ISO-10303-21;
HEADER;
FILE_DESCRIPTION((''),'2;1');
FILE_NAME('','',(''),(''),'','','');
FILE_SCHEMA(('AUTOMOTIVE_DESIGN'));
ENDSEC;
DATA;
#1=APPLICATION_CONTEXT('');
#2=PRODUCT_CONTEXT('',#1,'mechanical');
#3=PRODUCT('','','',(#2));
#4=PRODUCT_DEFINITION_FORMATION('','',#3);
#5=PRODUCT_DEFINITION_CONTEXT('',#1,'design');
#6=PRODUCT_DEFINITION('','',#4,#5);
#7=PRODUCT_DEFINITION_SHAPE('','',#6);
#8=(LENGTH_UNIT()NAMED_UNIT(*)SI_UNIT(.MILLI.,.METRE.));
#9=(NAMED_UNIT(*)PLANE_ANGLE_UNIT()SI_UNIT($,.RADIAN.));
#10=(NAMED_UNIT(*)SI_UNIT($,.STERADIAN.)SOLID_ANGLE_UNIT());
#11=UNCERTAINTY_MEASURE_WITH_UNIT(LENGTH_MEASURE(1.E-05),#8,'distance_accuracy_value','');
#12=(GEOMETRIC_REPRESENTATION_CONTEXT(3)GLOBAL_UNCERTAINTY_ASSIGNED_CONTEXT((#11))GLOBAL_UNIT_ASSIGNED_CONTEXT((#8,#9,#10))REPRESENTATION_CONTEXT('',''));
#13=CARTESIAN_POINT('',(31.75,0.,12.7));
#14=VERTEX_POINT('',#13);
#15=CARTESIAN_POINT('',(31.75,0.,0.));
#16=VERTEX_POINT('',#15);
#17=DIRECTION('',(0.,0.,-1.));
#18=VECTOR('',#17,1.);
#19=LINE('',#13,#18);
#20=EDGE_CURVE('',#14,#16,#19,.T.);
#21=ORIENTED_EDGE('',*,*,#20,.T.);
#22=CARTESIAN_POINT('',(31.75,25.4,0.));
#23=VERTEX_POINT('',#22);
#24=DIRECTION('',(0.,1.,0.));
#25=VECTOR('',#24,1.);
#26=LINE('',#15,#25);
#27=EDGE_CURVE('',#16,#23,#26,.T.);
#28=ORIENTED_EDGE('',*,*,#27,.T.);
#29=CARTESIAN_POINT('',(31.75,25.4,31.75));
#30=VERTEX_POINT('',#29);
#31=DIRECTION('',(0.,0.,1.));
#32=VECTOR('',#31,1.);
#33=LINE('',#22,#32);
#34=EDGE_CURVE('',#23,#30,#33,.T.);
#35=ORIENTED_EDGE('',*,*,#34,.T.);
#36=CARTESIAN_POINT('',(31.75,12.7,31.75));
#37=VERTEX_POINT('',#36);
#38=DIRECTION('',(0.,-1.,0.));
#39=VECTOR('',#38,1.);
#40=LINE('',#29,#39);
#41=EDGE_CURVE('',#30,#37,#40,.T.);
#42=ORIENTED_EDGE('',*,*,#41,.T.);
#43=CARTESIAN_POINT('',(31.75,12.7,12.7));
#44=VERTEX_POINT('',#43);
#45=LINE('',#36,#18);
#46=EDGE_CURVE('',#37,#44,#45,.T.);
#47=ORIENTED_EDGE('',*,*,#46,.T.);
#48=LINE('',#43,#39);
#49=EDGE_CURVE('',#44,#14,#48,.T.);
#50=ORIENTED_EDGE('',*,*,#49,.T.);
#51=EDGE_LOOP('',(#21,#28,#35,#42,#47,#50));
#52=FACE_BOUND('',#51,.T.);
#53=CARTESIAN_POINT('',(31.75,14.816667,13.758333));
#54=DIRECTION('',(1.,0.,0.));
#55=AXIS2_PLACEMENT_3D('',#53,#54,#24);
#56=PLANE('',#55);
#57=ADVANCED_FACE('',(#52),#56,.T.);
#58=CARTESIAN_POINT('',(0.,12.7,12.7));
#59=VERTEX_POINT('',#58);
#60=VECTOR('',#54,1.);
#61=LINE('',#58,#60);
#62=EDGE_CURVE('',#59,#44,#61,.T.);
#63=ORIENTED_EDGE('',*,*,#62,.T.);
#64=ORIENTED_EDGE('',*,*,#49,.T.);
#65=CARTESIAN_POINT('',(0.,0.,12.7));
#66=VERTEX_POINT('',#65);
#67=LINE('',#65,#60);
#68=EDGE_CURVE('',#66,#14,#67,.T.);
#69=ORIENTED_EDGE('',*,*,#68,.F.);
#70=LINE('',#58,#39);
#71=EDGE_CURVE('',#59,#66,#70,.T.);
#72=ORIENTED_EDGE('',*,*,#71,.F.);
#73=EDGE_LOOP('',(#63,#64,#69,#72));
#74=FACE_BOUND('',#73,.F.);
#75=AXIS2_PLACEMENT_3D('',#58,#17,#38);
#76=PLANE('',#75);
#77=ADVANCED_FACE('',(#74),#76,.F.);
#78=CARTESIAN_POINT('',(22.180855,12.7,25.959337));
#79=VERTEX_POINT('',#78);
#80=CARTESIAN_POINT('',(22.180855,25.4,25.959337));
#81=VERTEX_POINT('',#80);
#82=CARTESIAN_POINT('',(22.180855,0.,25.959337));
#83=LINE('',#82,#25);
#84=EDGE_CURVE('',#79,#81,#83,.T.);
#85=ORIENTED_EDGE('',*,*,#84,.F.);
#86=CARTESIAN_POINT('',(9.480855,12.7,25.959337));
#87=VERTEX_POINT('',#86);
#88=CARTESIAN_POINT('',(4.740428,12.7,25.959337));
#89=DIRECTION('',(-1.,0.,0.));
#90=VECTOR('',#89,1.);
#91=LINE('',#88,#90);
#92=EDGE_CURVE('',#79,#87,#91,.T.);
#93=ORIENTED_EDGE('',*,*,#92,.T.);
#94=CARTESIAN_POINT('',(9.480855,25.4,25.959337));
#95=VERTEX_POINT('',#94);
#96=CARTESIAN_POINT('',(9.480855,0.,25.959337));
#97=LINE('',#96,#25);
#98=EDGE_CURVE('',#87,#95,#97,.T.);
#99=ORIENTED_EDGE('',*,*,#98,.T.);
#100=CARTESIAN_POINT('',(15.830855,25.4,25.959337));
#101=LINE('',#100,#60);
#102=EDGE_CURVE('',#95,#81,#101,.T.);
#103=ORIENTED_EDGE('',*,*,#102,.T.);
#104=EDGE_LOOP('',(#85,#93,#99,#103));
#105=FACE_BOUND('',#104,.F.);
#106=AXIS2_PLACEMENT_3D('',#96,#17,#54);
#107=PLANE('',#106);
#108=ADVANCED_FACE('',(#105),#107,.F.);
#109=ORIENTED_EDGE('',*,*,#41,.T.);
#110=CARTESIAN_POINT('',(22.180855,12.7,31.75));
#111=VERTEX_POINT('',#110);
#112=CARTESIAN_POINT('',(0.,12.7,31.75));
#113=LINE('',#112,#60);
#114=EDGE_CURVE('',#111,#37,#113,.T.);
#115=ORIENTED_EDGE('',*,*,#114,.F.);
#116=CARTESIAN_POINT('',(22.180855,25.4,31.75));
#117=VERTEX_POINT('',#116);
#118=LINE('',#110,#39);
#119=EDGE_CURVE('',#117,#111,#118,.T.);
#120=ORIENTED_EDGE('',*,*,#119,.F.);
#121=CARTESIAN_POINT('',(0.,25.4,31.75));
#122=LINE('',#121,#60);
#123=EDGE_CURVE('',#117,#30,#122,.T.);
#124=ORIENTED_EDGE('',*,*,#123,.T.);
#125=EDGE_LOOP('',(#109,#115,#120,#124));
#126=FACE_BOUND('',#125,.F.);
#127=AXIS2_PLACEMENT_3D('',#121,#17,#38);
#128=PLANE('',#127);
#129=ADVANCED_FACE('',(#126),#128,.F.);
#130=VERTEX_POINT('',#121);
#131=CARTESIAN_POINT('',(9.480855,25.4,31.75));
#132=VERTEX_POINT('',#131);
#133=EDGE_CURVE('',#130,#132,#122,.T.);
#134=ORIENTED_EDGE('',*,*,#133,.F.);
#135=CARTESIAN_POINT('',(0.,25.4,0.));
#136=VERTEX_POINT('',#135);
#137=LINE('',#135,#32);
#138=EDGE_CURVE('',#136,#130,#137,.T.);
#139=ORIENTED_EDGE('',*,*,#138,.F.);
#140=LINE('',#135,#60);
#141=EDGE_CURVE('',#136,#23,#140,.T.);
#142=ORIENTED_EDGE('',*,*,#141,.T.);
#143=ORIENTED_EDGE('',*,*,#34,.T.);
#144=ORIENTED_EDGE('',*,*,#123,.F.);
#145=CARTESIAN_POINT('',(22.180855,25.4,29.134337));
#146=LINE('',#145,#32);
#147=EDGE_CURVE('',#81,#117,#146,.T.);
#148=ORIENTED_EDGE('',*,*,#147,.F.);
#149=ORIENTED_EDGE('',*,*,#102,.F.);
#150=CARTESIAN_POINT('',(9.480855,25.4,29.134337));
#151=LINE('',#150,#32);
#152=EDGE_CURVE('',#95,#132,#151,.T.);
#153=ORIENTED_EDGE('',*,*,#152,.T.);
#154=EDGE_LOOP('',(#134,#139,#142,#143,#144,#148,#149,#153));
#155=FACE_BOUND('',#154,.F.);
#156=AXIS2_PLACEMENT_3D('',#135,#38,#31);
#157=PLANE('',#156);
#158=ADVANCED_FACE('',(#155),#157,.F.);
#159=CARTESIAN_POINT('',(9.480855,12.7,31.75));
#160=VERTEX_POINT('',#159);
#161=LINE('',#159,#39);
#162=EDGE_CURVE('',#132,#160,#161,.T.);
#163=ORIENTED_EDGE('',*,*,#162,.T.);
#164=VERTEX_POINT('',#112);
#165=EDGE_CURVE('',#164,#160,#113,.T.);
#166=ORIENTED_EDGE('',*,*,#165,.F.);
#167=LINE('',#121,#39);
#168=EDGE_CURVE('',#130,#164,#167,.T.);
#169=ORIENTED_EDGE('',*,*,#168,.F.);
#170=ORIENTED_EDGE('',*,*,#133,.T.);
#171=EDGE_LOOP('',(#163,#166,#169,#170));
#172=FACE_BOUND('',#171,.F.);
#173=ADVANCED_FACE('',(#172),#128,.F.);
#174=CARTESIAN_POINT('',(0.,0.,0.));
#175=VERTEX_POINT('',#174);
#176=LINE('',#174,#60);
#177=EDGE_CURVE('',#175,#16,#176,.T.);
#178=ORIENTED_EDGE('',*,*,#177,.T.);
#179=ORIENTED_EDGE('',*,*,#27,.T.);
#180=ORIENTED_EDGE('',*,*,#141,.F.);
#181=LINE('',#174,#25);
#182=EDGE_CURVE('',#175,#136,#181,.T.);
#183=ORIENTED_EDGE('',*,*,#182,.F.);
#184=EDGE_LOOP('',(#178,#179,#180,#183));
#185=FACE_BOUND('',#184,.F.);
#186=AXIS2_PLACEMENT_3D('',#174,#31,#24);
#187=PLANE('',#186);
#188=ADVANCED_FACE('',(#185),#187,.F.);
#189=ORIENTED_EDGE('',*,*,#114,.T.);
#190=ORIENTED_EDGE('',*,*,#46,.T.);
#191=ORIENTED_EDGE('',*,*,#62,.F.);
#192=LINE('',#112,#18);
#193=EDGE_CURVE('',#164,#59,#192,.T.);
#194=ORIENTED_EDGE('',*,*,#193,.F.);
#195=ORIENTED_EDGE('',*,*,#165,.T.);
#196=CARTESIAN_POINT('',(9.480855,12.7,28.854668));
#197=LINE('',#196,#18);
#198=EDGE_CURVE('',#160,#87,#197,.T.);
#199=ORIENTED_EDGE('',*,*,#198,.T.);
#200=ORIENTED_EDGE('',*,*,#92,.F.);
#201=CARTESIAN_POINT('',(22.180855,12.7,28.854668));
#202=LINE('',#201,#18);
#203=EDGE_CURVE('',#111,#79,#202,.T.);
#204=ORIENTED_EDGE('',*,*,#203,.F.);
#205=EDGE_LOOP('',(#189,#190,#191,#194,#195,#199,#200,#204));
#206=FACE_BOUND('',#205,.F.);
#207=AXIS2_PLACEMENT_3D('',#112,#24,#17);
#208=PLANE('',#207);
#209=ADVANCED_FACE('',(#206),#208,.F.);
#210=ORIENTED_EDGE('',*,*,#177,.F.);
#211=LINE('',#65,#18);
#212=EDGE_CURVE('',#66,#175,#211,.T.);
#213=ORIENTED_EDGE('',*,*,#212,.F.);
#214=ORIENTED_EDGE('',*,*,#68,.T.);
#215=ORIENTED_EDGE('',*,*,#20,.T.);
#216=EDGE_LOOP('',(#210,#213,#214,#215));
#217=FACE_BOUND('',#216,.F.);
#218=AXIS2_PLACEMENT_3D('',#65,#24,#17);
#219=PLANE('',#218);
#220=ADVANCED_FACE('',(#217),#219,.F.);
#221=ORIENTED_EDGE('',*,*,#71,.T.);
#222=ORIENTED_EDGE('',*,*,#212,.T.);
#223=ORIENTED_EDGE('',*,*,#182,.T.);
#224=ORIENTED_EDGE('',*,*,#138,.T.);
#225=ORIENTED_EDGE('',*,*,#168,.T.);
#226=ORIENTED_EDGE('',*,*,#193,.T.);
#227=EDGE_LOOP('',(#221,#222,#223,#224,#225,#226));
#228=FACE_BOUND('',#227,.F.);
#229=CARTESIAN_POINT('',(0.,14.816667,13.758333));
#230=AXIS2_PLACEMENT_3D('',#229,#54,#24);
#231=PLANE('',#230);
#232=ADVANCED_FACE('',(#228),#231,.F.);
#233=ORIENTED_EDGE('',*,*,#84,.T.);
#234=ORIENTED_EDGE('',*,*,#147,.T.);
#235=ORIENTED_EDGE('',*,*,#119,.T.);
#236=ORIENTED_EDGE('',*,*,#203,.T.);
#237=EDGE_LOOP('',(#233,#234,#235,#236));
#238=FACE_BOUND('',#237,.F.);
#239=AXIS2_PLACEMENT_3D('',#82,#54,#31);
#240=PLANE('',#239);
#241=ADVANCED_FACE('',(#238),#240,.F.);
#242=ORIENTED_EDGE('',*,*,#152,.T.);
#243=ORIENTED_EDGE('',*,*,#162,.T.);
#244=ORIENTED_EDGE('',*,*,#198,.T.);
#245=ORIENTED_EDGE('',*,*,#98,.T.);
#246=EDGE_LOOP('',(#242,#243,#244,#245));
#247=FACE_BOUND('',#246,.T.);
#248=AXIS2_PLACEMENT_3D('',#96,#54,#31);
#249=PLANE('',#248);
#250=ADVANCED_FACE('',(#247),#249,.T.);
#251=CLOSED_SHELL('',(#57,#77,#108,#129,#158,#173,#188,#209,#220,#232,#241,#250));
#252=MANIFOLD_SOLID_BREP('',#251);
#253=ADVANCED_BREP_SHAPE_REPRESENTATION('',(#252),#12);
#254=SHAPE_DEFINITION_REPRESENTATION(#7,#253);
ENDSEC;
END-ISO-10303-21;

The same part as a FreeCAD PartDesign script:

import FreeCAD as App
import Part
import Sketcher

V = App.Vector
Q = App.Units.Quantity

doc = App.newDocument("Part")
body = doc.addObject("PartDesign::Body", "Body")

sketch1 = body.newObject("Sketcher::SketchObject", "Sketch")
sketch1.AttachmentSupport = (doc.getObject("YZ_Plane"), [""])
sketch1.MapMode = "FlatFace"
sketch1.addGeometry([
    Part.LineSegment(V(0, 13, 0), V(0, 0, 0)),
    Part.LineSegment(V(0, 0, 0), V(25, 0, 0)),
    Part.LineSegment(V(25, 0, 0), V(25, 32, 0)),
    Part.LineSegment(V(25, 32, 0), V(13, 32, 0)),
    Part.LineSegment(V(13, 32, 0), V(13, 13, 0)),
    Part.LineSegment(V(13, 13, 0), V(0, 13, 0)),
], False)
sketch1.addConstraint([
    Sketcher.Constraint("Coincident", 0, 2, 1, 1),
    Sketcher.Constraint("Coincident", 1, 2, 2, 1),
    Sketcher.Constraint("Coincident", 2, 2, 3, 1),
    Sketcher.Constraint("Coincident", 3, 2, 4, 1),
    Sketcher.Constraint("Coincident", 4, 2, 5, 1),
    Sketcher.Constraint("Coincident", 5, 2, 0, 1),
    Sketcher.Constraint("Vertical", 0),
    Sketcher.Constraint("Horizontal", 1),
    Sketcher.Constraint("Vertical", 2),
    Sketcher.Constraint("Horizontal", 3),
    Sketcher.Constraint("Vertical", 4),
    Sketcher.Constraint("Horizontal", 5),
    Sketcher.Constraint("Coincident", 0, 2, -1, 1),
    Sketcher.Constraint("Equal", 3, 5),
    Sketcher.Constraint("Equal", 5, 0),
    Sketcher.Constraint("DistanceX", 1, 1, 1, 2, Q("1 in")),
    Sketcher.Constraint("DistanceY", 2, 1, 2, 2, Q("1.25 in")),
])
pad1 = body.newObject("PartDesign::Pad", "Pad")
pad1.Profile = sketch1
pad1.Length = Q("1.25 in")

sketch2 = body.newObject("Sketcher::SketchObject", "Sketch001")
sketch2.AttachmentSupport = (doc.getObject("XZ_Plane"), [""])
sketch2.MapMode = "FlatFace"
sketch2.addGeometry([
    Part.LineSegment(V(9, 32, 0), V(9, 26, 0)),
    Part.LineSegment(V(9, 26, 0), V(22, 26, 0)),
    Part.LineSegment(V(22, 26, 0), V(22, 32, 0)),
    Part.LineSegment(V(22, 32, 0), V(9, 32, 0)),
], False)
sketch2.addConstraint([
    Sketcher.Constraint("Coincident", 0, 2, 1, 1),
    Sketcher.Constraint("Coincident", 1, 2, 2, 1),
    Sketcher.Constraint("Coincident", 2, 2, 3, 1),
    Sketcher.Constraint("Coincident", 3, 2, 0, 1),
    Sketcher.Constraint("Vertical", 0),
    Sketcher.Constraint("Horizontal", 1),
    Sketcher.Constraint("Vertical", 2),
    Sketcher.Constraint("Horizontal", 3),
    Sketcher.Constraint("DistanceX", 1, 1, 1, 2, Q("0.5 in")),
    Sketcher.Constraint("DistanceY", 0, 2, 0, 1, Q("0.25 in")),
    Sketcher.Constraint("DistanceX", -1, 1, 0, 2, 9.480855),
    Sketcher.Constraint("DistanceY", -1, 1, 0, 2, 25.959337),
])
pocket1 = body.newObject("PartDesign::Pocket", "Pocket")
pocket1.Profile = sketch2
pocket1.Length = Q("1 in")

sketch3 = body.newObject("Sketcher::SketchObject", "Sketch002")
sketch3.AttachmentSupport = (doc.getObject("XZ_Plane"), [""])
sketch3.MapMode = "FlatFace"
sketch3.addGeometry([
    Part.LineSegment(V(9, 32, 0), V(9, 26, 0)),
    Part.LineSegment(V(9, 26, 0), V(22, 26, 0)),
    Part.LineSegment(V(22, 26, 0), V(22, 32, 0)),
    Part.LineSegment(V(22, 32, 0), V(9, 32, 0)),
], False)
sketch3.addConstraint([
    Sketcher.Constraint("Coincident", 0, 2, 1, 1),
    Sketcher.Constraint("Coincident", 1, 2, 2, 1),
    Sketcher.Constraint("Coincident", 2, 2, 3, 1),
    Sketcher.Constraint("Coincident", 3, 2, 0, 1),
    Sketcher.Constraint("Vertical", 0),
    Sketcher.Constraint("Horizontal", 1),
    Sketcher.Constraint("Vertical", 2),
    Sketcher.Constraint("Horizontal", 3),
    Sketcher.Constraint("DistanceX", 1, 1, 1, 2, Q("0.5 in")),
    Sketcher.Constraint("DistanceY", 0, 2, 0, 1, Q("0.25 in")),
    Sketcher.Constraint("DistanceX", -1, 1, 0, 2, 9.480855),
    Sketcher.Constraint("DistanceY", -1, 1, 0, 2, 25.959337),
])
pocket2 = body.newObject("PartDesign::Pocket", "Pocket001")
pocket2.Profile = sketch3
pocket2.Length = Q("1 in")

doc.recompute()
